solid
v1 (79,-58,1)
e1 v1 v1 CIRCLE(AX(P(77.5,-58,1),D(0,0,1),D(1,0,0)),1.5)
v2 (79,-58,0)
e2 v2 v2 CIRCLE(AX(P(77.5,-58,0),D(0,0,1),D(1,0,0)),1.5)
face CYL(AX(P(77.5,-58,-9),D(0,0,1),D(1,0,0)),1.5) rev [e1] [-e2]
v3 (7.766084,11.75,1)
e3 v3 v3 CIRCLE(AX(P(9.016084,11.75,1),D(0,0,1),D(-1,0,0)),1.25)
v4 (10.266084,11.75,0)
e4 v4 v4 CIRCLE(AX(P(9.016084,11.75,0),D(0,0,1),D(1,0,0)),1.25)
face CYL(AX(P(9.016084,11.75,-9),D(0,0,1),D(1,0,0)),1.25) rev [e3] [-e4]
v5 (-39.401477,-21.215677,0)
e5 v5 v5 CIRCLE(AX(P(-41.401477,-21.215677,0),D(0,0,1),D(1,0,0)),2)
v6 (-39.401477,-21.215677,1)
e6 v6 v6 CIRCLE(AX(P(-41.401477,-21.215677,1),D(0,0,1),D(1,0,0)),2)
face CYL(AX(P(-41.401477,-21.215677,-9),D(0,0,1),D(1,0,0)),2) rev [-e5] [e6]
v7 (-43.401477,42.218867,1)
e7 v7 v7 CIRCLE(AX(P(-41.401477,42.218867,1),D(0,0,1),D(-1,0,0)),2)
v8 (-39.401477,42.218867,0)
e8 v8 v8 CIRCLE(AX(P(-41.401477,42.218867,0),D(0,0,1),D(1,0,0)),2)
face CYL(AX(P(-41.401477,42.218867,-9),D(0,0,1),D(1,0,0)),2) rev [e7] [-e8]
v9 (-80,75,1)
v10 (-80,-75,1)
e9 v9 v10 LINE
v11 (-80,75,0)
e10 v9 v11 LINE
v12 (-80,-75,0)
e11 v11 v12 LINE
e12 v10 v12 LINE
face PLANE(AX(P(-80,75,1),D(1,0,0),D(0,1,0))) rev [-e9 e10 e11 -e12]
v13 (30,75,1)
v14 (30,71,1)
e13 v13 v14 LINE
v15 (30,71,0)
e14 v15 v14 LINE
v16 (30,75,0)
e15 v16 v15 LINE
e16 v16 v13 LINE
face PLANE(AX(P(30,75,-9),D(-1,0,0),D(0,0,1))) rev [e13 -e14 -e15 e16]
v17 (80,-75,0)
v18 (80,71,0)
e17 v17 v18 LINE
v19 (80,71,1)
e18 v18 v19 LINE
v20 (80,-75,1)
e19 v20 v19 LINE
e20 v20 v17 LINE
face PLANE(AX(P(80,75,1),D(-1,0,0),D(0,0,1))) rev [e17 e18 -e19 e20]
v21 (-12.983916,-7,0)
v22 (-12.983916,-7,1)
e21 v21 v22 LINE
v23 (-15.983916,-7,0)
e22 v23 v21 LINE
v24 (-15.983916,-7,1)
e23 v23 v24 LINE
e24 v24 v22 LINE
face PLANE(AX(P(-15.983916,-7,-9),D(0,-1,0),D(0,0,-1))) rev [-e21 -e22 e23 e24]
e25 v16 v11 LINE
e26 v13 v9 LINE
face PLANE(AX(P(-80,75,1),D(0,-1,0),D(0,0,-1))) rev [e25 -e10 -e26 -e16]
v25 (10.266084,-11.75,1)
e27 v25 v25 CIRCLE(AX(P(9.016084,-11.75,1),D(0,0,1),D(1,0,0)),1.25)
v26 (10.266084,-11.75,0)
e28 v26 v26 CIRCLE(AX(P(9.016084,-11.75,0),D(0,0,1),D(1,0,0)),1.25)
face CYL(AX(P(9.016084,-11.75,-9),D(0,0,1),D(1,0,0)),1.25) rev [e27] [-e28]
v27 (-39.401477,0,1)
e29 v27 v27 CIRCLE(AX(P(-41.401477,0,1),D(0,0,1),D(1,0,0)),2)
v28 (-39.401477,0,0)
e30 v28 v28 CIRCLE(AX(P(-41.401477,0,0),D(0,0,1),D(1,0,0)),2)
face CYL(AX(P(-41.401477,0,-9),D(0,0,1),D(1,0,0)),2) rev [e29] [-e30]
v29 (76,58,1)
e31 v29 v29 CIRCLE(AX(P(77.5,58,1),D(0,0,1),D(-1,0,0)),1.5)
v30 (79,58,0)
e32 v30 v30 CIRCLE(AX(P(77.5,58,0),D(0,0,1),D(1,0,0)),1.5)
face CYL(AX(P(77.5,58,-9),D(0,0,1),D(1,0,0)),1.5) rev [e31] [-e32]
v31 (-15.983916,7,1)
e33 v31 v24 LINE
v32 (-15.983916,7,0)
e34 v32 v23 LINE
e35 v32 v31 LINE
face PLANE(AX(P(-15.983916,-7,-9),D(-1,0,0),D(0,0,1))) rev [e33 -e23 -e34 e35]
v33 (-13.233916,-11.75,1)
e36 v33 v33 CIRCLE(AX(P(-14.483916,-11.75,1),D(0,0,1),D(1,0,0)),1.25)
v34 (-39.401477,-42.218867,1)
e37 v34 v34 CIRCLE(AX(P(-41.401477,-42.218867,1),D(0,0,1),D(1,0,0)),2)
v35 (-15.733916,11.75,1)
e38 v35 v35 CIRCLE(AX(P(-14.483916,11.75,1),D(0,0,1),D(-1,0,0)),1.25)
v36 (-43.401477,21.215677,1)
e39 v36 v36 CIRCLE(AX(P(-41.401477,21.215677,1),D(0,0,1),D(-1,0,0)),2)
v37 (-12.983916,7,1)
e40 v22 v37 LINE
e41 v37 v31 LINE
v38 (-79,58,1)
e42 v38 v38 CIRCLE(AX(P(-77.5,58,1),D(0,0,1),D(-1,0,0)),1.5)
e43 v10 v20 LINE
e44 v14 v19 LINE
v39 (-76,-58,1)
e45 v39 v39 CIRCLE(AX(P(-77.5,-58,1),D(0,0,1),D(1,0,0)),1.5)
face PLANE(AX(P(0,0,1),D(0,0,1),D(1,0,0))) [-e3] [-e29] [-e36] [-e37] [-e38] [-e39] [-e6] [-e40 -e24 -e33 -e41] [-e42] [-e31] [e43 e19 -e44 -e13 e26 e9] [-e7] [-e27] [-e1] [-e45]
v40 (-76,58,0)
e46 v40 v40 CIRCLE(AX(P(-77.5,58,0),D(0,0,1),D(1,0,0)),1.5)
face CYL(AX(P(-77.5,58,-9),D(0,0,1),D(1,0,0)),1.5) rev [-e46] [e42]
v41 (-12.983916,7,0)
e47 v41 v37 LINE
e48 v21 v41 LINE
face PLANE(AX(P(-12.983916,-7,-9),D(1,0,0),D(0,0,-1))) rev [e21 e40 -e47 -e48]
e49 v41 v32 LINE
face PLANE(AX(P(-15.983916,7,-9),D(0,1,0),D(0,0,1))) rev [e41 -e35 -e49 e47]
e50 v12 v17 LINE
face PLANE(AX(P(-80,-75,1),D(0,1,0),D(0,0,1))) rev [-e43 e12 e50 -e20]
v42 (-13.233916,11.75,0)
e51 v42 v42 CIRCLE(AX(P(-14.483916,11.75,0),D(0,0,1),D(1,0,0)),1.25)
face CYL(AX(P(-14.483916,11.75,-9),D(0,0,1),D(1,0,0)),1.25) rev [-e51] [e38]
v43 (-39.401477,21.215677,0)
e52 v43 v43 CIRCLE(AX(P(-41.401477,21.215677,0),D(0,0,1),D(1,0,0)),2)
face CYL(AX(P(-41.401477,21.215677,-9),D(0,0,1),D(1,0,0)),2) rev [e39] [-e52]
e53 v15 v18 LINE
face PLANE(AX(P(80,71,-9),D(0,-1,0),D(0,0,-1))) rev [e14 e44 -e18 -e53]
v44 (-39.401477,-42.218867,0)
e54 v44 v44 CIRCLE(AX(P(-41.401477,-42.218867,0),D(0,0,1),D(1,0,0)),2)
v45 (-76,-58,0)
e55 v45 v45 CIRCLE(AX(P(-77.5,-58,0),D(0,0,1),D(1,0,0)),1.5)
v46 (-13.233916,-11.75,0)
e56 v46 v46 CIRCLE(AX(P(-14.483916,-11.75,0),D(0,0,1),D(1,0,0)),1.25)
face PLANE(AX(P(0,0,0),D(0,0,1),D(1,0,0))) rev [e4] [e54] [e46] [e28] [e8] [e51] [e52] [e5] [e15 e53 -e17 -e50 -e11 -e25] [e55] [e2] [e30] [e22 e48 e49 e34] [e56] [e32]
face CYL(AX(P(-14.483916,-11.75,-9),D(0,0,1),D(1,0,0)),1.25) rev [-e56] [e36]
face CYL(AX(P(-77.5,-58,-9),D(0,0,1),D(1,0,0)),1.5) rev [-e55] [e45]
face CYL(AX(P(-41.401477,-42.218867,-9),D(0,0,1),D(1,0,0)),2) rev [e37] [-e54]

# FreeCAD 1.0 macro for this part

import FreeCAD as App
import Part
import Sketcher

V = App.Vector
Q = App.Units.Quantity

doc = App.newDocument("Part")
body = doc.addObject("PartDesign::Body", "Body")

# Sketch on XY plane
sketch1 = body.newObject("Sketcher::SketchObject", "Sketch")
sketch1.AttachmentSupport = (doc.getObject("XY_Plane"), [""])
sketch1.MapMode = "FlatFace"
sketch1.addGeometry([
    Part.LineSegment(V(-80, 75, 0), V(-80, -75, 0)),
    Part.LineSegment(V(-80, -75, 0), V(80, -75, 0)),
    Part.LineSegment(V(80, -75, 0), V(80, 75, 0)),
    Part.LineSegment(V(80, 75, 0), V(-80, 75, 0)),
], False)
sketch1.addConstraint([
    Sketcher.Constraint("Coincident", 0, 2, 1, 1),
    Sketcher.Constraint("Coincident", 1, 2, 2, 1),
    Sketcher.Constraint("Coincident", 2, 2, 3, 1),
    Sketcher.Constraint("Coincident", 3, 2, 0, 1),
    Sketcher.Constraint("Vertical", 0),
    Sketcher.Constraint("Horizontal", 1),
    Sketcher.Constraint("Vertical", 2),
    Sketcher.Constraint("Horizontal", 3),
    Sketcher.Constraint("Symmetric", 0, 2, 2, 2, -1, 1),
    Sketcher.Constraint("DistanceX", 1, 1, 1, 2, Q("160 mm")),
    Sketcher.Constraint("DistanceY", 0, 2, 0, 1, Q("150 mm")),
])
pad1 = body.newObject("PartDesign::Pad", "Pad")
pad1.Profile = sketch1
pad1.Length = 1

# Sketch on XY plane
sketch2 = body.newObject("Sketcher::SketchObject", "Sketch001")
sketch2.AttachmentSupport = (doc.getObject("XY_Plane"), [""])
sketch2.MapMode = "FlatFace"
sketch2.AttachmentOffset = App.Placement(V(0, 0, 1), App.Rotation())
sketch2.addGeometry([
    Part.Circle(V(-77.5, -58, 0), V(0, 0, 1), 1.5),  # 0
    Part.Circle(V(77.5, -58, 0), V(0, 0, 1), 1.5),  # 1
    Part.Circle(V(77.5, 58, 0), V(0, 0, 1), 1.5),  # 2
    Part.Circle(V(-77.5, 58, 0), V(0, 0, 1), 1.5),  # 3
    Part.Circle(V(-14.5, -11.8, 0), V(0, 0, 1), 1.2),  # 4
    Part.Circle(V(9, -11.8, 0), V(0, 0, 1), 1.2),  # 5
    Part.Circle(V(9, 11.8, 0), V(0, 0, 1), 1.2),  # 6
    Part.Circle(V(-14.5, 11.8, 0), V(0, 0, 1), 1.2),  # 7
    Part.Circle(V(-41.4, 0, 0), V(0, 0, 1), 2),  # 8
    Part.Circle(V(-41.4, -21.2, 0), V(0, 0, 1), 2),  # 9
    Part.Circle(V(-41.4, 21.2, 0), V(0, 0, 1), 2),  # 10
    Part.Circle(V(-41.4, -42.2, 0), V(0, 0, 1), 2),  # 11
    Part.Circle(V(-41.4, 42.2, 0), V(0, 0, 1), 2),  # 12
    Part.LineSegment(V(30, 75, 0), V(30, 71, 0)),  # 13
    Part.LineSegment(V(30, 71, 0), V(80, 71, 0)),  # 14
    Part.LineSegment(V(80, 71, 0), V(80, 75, 0)),  # 15
    Part.LineSegment(V(80, 75, 0), V(30, 75, 0)),  # 16
    Part.LineSegment(V(-16, 7, 0), V(-16, -7, 0)),  # 17
    Part.LineSegment(V(-16, -7, 0), V(-13, -7, 0)),  # 18
    Part.LineSegment(V(-13, -7, 0), V(-13, 7, 0)),  # 19
    Part.LineSegment(V(-13, 7, 0), V(-16, 7, 0)),  # 20
], False)
sketch2.addConstraint([
    Sketcher.Constraint("Coincident", 13, 2, 14, 1),
    Sketcher.Constraint("Coincident", 14, 2, 15, 1),
    Sketcher.Constraint("Coincident", 15, 2, 16, 1),
    Sketcher.Constraint("Coincident", 16, 2, 13, 1),
    Sketcher.Constraint("Coincident", 17, 2, 18, 1),
    Sketcher.Constraint("Coincident", 18, 2, 19, 1),
    Sketcher.Constraint("Coincident", 19, 2, 20, 1),
    Sketcher.Constraint("Coincident", 20, 2, 17, 1),
    Sketcher.Constraint("Vertical", 13),
    Sketcher.Constraint("Horizontal", 14),
    Sketcher.Constraint("Vertical", 15),
    Sketcher.Constraint("Horizontal", 16),
    Sketcher.Constraint("Vertical", 17),
    Sketcher.Constraint("Horizontal", 18),
    Sketcher.Constraint("Vertical", 19),
    Sketcher.Constraint("Horizontal", 20),
    Sketcher.Constraint("Equal", 0, 1),
    Sketcher.Constraint("Equal", 1, 2),
    Sketcher.Constraint("Equal", 2, 3),
    Sketcher.Constraint("Equal", 4, 5),
    Sketcher.Constraint("Equal", 5, 6),
    Sketcher.Constraint("Equal", 6, 7),
    Sketcher.Constraint("Equal", 8, 9),
    Sketcher.Constraint("Equal", 9, 10),
    Sketcher.Constraint("Equal", 10, 11),
    Sketcher.Constraint("Equal", 11, 12),
    Sketcher.Constraint("Symmetric", 0, 3, 2, 3, -1, 1),
    Sketcher.Constraint("Symmetric", 1, 3, 3, 3, -1, 1),
    Sketcher.Constraint("Symmetric", 0, 3, 1, 3, -2),
    Sketcher.Constraint("Symmetric", 5, 3, 6, 3, -1),
    Sketcher.Constraint("Symmetric", 4, 3, 7, 3, -1),
    Sketcher.Constraint("Symmetric", 9, 3, 10, 3, -1),
    Sketcher.Constraint("Symmetric", 11, 3, 12, 3, -1),
    Sketcher.Constraint("PointOnObject", 8, 3, -1),
    Sketcher.Constraint("Horizontal", 4, 3, 5, 3),
    Sketcher.Constraint("Vertical", 8, 3, 9, 3),
    Sketcher.Constraint("Vertical", 10, 3, 11, 3),
    Sketcher.Constraint("Diameter", 0, Q("3 mm")),
    Sketcher.Constraint("Diameter", 8, Q("4 mm")),
    Sketcher.Constraint("Diameter", 4, Q("2.5 mm")),
    Sketcher.Constraint("DistanceX", 14, 1, 14, 2, Q("50 mm")),
    Sketcher.Constraint("DistanceX", 18, 1, 18, 2, Q("3 mm")),
    Sketcher.Constraint("DistanceY", 13, 2, 13, 1, Q("4 mm")),
    Sketcher.Constraint("DistanceY", 17, 2, 17, 1, Q("14 mm")),
    Sketcher.Constraint("DistanceY", 0, 3, -1, 1, Q("58 mm")),
    Sketcher.Constraint("DistanceX", -1, 1, 13, 2, Q("30 mm")),
    Sketcher.Constraint("DistanceY", -1, 1, 13, 2, Q("71 mm")),
    Sketcher.Constraint("DistanceY", 17, 2, -1, 1, Q("7 mm")),
    Sketcher.Constraint("DistanceX", 0, 3, 1, 3, Q("155 mm")),
    Sketcher.Constraint("DistanceX", 17, 2, 5, 3, Q("25 mm")),
    Sketcher.Constraint("DistanceX", 4, 3, 5, 3, Q("23.5 mm")),
    Sketcher.Constraint("DistanceY", 5, 3, 6, 3, Q("23.5 mm")),
    Sketcher.Constraint("DistanceX", 8, 3, 4, 3, Q("26.917561 mm")),
    Sketcher.Constraint("DistanceY", 11, 3, 9, 3, Q("21.00319 mm")),
    Sketcher.Constraint("DistanceX", 4, 3, -1, 1, Q("14.483916 mm")),
    Sketcher.Constraint("DistanceY", 9, 3, -1, 1, Q("21.215677 mm")),
])
pocket1 = body.newObject("PartDesign::Pocket", "Pocket")
pocket1.Profile = sketch2
pocket1.Length = 10

doc.recompute()
